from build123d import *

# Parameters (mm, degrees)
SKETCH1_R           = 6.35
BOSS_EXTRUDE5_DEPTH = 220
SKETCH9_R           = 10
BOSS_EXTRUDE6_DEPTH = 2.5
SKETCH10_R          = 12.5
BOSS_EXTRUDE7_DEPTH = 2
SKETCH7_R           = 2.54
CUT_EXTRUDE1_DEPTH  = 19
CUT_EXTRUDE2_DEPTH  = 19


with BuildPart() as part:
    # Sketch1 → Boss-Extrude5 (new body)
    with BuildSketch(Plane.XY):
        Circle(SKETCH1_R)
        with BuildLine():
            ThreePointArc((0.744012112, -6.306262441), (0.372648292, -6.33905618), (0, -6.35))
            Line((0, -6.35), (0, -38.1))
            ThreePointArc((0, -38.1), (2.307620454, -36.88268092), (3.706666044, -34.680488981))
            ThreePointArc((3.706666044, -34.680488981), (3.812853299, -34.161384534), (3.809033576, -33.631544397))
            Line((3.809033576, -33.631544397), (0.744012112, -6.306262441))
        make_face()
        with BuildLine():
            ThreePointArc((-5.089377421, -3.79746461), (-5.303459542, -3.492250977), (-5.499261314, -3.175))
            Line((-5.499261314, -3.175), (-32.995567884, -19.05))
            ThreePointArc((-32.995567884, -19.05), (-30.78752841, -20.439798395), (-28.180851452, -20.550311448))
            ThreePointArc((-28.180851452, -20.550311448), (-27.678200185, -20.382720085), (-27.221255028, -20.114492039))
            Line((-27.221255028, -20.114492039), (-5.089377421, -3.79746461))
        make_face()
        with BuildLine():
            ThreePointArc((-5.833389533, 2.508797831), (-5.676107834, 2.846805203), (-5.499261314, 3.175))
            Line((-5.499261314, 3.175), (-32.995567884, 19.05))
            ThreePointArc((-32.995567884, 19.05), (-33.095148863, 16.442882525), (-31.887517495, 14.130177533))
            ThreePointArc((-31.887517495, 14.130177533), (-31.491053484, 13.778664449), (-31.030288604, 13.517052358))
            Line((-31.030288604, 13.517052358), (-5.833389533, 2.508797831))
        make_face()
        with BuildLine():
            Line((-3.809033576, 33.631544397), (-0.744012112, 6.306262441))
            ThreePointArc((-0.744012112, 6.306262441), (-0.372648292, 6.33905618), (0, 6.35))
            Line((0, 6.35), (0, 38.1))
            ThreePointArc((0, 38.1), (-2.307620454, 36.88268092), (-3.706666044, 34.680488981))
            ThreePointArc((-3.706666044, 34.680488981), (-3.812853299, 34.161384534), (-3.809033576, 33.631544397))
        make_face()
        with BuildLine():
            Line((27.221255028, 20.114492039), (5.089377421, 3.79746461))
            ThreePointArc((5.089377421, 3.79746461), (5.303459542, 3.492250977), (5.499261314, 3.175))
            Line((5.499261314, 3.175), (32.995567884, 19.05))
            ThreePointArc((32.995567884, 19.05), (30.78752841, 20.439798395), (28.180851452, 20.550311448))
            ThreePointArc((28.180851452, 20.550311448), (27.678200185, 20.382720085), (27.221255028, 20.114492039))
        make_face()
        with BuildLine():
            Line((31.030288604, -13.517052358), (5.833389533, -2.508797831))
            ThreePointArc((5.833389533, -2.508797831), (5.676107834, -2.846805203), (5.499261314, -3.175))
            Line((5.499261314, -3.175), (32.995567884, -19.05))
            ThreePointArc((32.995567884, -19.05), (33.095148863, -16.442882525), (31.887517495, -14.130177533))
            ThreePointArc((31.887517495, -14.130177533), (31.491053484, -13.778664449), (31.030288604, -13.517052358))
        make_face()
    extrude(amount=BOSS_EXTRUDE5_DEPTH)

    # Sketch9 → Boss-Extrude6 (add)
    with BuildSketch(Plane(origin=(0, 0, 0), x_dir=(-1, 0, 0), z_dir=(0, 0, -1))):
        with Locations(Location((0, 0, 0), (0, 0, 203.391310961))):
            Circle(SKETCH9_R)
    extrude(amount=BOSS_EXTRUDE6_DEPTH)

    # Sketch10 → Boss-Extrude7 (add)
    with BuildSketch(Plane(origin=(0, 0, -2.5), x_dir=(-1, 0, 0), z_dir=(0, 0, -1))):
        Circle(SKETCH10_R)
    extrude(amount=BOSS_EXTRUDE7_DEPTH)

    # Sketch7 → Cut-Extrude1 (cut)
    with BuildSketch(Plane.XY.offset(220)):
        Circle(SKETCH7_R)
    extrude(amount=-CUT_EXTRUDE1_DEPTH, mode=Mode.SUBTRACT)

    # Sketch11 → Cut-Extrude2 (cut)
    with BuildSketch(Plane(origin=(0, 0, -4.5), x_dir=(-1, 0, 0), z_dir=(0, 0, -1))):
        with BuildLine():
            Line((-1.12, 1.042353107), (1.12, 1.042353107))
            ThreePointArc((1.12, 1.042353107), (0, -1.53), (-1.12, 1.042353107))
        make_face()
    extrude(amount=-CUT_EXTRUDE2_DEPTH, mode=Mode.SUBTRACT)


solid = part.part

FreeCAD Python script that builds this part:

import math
import FreeCAD as App
import Part
import Sketcher
Q = App.Units.Quantity

doc = App.newDocument("Part")
body = doc.addObject("PartDesign::Body", "Body")

# Sketch on XY plane
sketch1 = body.newObject("Sketcher::SketchObject", "Sketch")
sketch1.AttachmentSupport = (doc.getObject("XY_Plane"), [""])
sketch1.MapMode = "FlatFace"
sketch1.addGeometry([
    Part.LineSegment(App.Vector(0, -6.35, 0), App.Vector(0, -38.1, 0)),  # 0
    Part.ArcOfCircle(Part.Circle(App.Vector(-1.13694, -33.148862, 0), App.Vector(0, 0, 1), 5.08), math.radians(-77.06726), math.radians(-17.547802)),  # 1
    Part.ArcOfCircle(Part.Circle(App.Vector(1.284863, -33.914675, 0), App.Vector(0, 0, 1), 2.54), math.radians(-17.547802), math.radians(6.4)),  # 2
    Part.LineSegment(App.Vector(3.809034, -33.631544, 0), App.Vector(0.744012, -6.306262, 0)),  # 3
    Part.ArcOfCircle(Part.Circle(App.Vector(0, 0, 0), App.Vector(0, 0, 1), 6.35), math.radians(-83.271355), math.radians(-30)),  # 4
    Part.LineSegment(App.Vector(5.499261, -3.175, 0), App.Vector(32.995568, -19.05, 0)),  # 5
    Part.ArcOfCircle(Part.Circle(App.Vector(28.139287, -17.55905, 0), App.Vector(0, 0, 1), 5.08), math.radians(-17.06726), math.radians(42.452198)),  # 6
    Part.ArcOfCircle(Part.Circle(App.Vector(30.013402, -15.844614, 0), App.Vector(0, 0, 1), 2.54), math.radians(42.452198), math.radians(66.4)),  # 7
    Part.LineSegment(App.Vector(31.030289, -13.517052, 0), App.Vector(5.83339, -2.508798, 0)),  # 8
    Part.ArcOfCircle(Part.Circle(App.Vector(0, 0, 0), App.Vector(0, 0, 1), 6.35), math.radians(-23.271355), math.radians(30)),  # 9
    Part.LineSegment(App.Vector(5.499261, 3.175, 0), App.Vector(32.995568, 19.05, 0)),  # 10
    Part.ArcOfCircle(Part.Circle(App.Vector(29.276227, 15.589812, 0), App.Vector(0, 0, 1), 5.08), math.radians(42.93274), math.radians(102.452198)),  # 11
    Part.ArcOfCircle(Part.Circle(App.Vector(28.728539, 18.070062, 0), App.Vector(0, 0, 1), 2.54), math.radians(102.452198), math.radians(126.4)),  # 12
    Part.LineSegment(App.Vector(27.221255, 20.114492, 0), App.Vector(5.089377, 3.797465, 0)),  # 13
    Part.ArcOfCircle(Part.Circle(App.Vector(0, 0, 0), App.Vector(0, 0, 1), 6.35), math.radians(36.728645), math.radians(90)),  # 14
    Part.LineSegment(App.Vector(0, 6.35, 0), App.Vector(0, 38.1, 0)),  # 15
    Part.ArcOfCircle(Part.Circle(App.Vector(1.13694, 33.148862, 0), App.Vector(0, 0, 1), 5.08), math.radians(102.93274), math.radians(162.452198)),  # 16
    Part.ArcOfCircle(Part.Circle(App.Vector(-1.284863, 33.914675, 0), App.Vector(0, 0, 1), 2.54), math.radians(162.452198), math.radians(186.4)),  # 17
    Part.LineSegment(App.Vector(-3.809034, 33.631544, 0), App.Vector(-0.744012, 6.306262, 0)),  # 18
    Part.ArcOfCircle(Part.Circle(App.Vector(0, 0, 0), App.Vector(0, 0, 1), 6.35), math.radians(96.728645), math.radians(150)),  # 19
    Part.LineSegment(App.Vector(-5.499261, 3.175, 0), App.Vector(-32.995568, 19.05, 0)),  # 20
    Part.ArcOfCircle(Part.Circle(App.Vector(-28.139287, 17.55905, 0), App.Vector(0, 0, 1), 5.08), math.radians(162.93274), math.radians(222.452198)),  # 21
    Part.ArcOfCircle(Part.Circle(App.Vector(-30.013402, 15.844614, 0), App.Vector(0, 0, 1), 2.54), math.radians(-137.547802), math.radians(-113.6)),  # 22
    Part.LineSegment(App.Vector(-31.030289, 13.517052, 0), App.Vector(-5.83339, 2.508798, 0)),  # 23
    Part.ArcOfCircle(Part.Circle(App.Vector(0, 0, 0), App.Vector(0, 0, 1), 6.35), math.radians(156.728645), math.radians(210)),  # 24
    Part.LineSegment(App.Vector(-5.499261, -3.175, 0), App.Vector(-32.995568, -19.05, 0)),  # 25
    Part.ArcOfCircle(Part.Circle(App.Vector(-29.276227, -15.589812, 0), App.Vector(0, 0, 1), 5.08), math.radians(-137.06726), math.radians(-77.547802)),  # 26
    Part.ArcOfCircle(Part.Circle(App.Vector(-28.728539, -18.070062, 0), App.Vector(0, 0, 1), 2.54), math.radians(-77.547802), math.radians(-53.6)),  # 27
    Part.LineSegment(App.Vector(-27.221255, -20.114492, 0), App.Vector(-5.089377, -3.797465, 0)),  # 28
    Part.ArcOfCircle(Part.Circle(App.Vector(0, 0, 0), App.Vector(0, 0, 1), 6.35), math.radians(-143.271355), math.radians(-90)),  # 29
], False)
sketch1.addConstraint([
    Sketcher.Constraint("Coincident", 0, 2, 1, 1),
    Sketcher.Constraint("Tangent", 1, 2, 2, 1),
    Sketcher.Constraint("Tangent", 2, 2, 3, 1),
    Sketcher.Constraint("Coincident", 3, 2, 4, 1),
    Sketcher.Constraint("Coincident", 4, 2, 5, 1),
    Sketcher.Constraint("Coincident", 5, 2, 6, 1),
    Sketcher.Constraint("Tangent", 6, 2, 7, 1),
    Sketcher.Constraint("Tangent", 7, 2, 8, 1),
    Sketcher.Constraint("Coincident", 8, 2, 9, 1),
    Sketcher.Constraint("Coincident", 9, 2, 10, 1),
    Sketcher.Constraint("Coincident", 10, 2, 11, 1),
    Sketcher.Constraint("Tangent", 11, 2, 12, 1),
    Sketcher.Constraint("Tangent", 12, 2, 13, 1),
    Sketcher.Constraint("Coincident", 13, 2, 14, 1),
    Sketcher.Constraint("Coincident", 14, 2, 15, 1),
    Sketcher.Constraint("Coincident", 15, 2, 16, 1),
    Sketcher.Constraint("Tangent", 16, 2, 17, 1),
    Sketcher.Constraint("Tangent", 17, 2, 18, 1),
    Sketcher.Constraint("Coincident", 18, 2, 19, 1),
    Sketcher.Constraint("Coincident", 19, 2, 20, 1),
    Sketcher.Constraint("Coincident", 20, 2, 21, 1),
    Sketcher.Constraint("Tangent", 21, 2, 22, 1),
    Sketcher.Constraint("Tangent", 22, 2, 23, 1),
    Sketcher.Constraint("Coincident", 23, 2, 24, 1),
    Sketcher.Constraint("Coincident", 24, 2, 25, 1),
    Sketcher.Constraint("Coincident", 25, 2, 26, 1),
    Sketcher.Constraint("Tangent", 26, 2, 27, 1),
    Sketcher.Constraint("Tangent", 27, 2, 28, 1),
    Sketcher.Constraint("Coincident", 28, 2, 29, 1),
    Sketcher.Constraint("Coincident", 29, 2, 0, 1),
    Sketcher.Constraint("Vertical", 0),
    Sketcher.Constraint("Vertical", 15),
    Sketcher.Constraint("Coincident", 4, 3, -1, 1),
    Sketcher.Constraint("Coincident", 9, 3, -1, 1),
    Sketcher.Constraint("Coincident", 14, 3, -1, 1),
    Sketcher.Constraint("Coincident", 19, 3, -1, 1),
    Sketcher.Constraint("Coincident", 24, 3, -1, 1),
    Sketcher.Constraint("Coincident", 29, 3, -1, 1),
    Sketcher.Constraint("Equal", 1, 6),
    Sketcher.Constraint("Equal", 2, 7),
    Sketcher.Constraint("Equal", 4, 9),
    Sketcher.Constraint("Equal", 6, 11),
    Sketcher.Constraint("Equal", 7, 12),
    Sketcher.Constraint("Equal", 9, 14),
    Sketcher.Constraint("Equal", 11, 16),
    Sketcher.Constraint("Equal", 12, 17),
    Sketcher.Constraint("Equal", 14, 19),
    Sketcher.Constraint("Equal", 16, 21),
    Sketcher.Constraint("Equal", 17, 22),
    Sketcher.Constraint("Equal", 19, 24),
    Sketcher.Constraint("Equal", 21, 26),
    Sketcher.Constraint("Equal", 22, 27),
    Sketcher.Constraint("Equal", 24, 29),
    Sketcher.Constraint("Symmetric", 1, 3, 16, 3, -1, 1),
    Sketcher.Constraint("Symmetric", 6, 3, 21, 3, -1, 1),
    Sketcher.Constraint("Symmetric", 11, 3, 26, 3, -1, 1),
    Sketcher.Constraint("Symmetric", 2, 2, 17, 2, -1, 1),
    Sketcher.Constraint("Symmetric", 7, 2, 22, 2, -1, 1),
    Sketcher.Constraint("Symmetric", 12, 2, 27, 2, -1, 1),
    Sketcher.Constraint("Symmetric", 10, 2, 20, 2, -2),
    Sketcher.Constraint("Symmetric", 5, 2, 25, 2, -2),
    Sketcher.Constraint("Symmetric", 0, 2, 15, 2, -1),
    Sketcher.Constraint("Parallel", 5, 20),
    Sketcher.Constraint("Parallel", 10, 25),
    Sketcher.Constraint("Horizontal", 9, 2, 19, 2),
    Sketcher.Constraint("Equal", 3, 8),
    Sketcher.Constraint("Equal", 8, 13),
    Sketcher.Constraint("Angle", 5, Q("-30 deg")),
    Sketcher.Constraint("Radius", 1, 5.08),
    Sketcher.Constraint("Radius", 2, 2.54),
    Sketcher.Constraint("Radius", 4, 6.35),
    Sketcher.Constraint("Angle", 3, Q("96.4 deg")),
    Sketcher.Constraint("Angle", 8, Q("156.4 deg")),
    Sketcher.Constraint("Angle", 13, Q("-143.6 deg")),
    Sketcher.Constraint("DistanceY", 0, 2, 0, 1, 31.75),
    Sketcher.Constraint("Distance", 5, 31.75),
    Sketcher.Constraint("DistanceY", 5, 2, -1, 1, 19.05),
    Sketcher.Constraint("DistanceX", 6, 3, 7, 2, 2.891002),
    Sketcher.Constraint("DistanceX", 16, 3, 12, 3, 27.591599),
    Sketcher.Constraint("DistanceY", 12, 3, 16, 3, 15.0788),
    Sketcher.Constraint("DistanceX", 1, 2, 5, 2, 29.288902),
])
pad1 = body.newObject("PartDesign::Pad", "Pad")
pad1.Profile = sketch1
pad1.Length = 220

# Sketch on XY plane
sketch2 = body.newObject("Sketcher::SketchObject", "Sketch001")
sketch2.AttachmentSupport = (doc.getObject("XY_Plane"), [""])
sketch2.MapMode = "FlatFace"
sketch2.addGeometry(Part.Circle(App.Vector(0, 0, 0), App.Vector(0, 0, 1), 10), False)
sketch2.addConstraint([
    Sketcher.Constraint("Coincident", 0, 3, -1, 1),
    Sketcher.Constraint("Diameter", 0, 20.0),
])
pad2 = body.newObject("PartDesign::Pad", "Pad001")
pad2.Profile = sketch2
pad2.Length = 2.5
pad2.Reversed = True

# Sketch on XY plane
sketch3 = body.newObject("Sketcher::SketchObject", "Sketch002")
sketch3.AttachmentSupport = (doc.getObject("XY_Plane"), [""])
sketch3.MapMode = "FlatFace"
sketch3.AttachmentOffset = App.Placement(App.Vector(0, 0, -2.5), App.Rotation())
sketch3.addGeometry(Part.Circle(App.Vector(0, 0, 0), App.Vector(0, 0, 1), 12.5), False)
sketch3.addConstraint([
    Sketcher.Constraint("Coincident", 0, 3, -1, 1),
    Sketcher.Constraint("Diameter", 0, 25.0),
])
pad3 = body.newObject("PartDesign::Pad", "Pad002")
pad3.Profile = sketch3
pad3.Length = 2
pad3.Reversed = True

# Sketch on XY plane
sketch4 = body.newObject("Sketcher::SketchObject", "Sketch003")
sketch4.AttachmentSupport = (doc.getObject("XY_Plane"), [""])
sketch4.MapMode = "FlatFace"
sketch4.AttachmentOffset = App.Placement(App.Vector(0, 0, 220), App.Rotation())
sketch4.addGeometry(Part.Circle(App.Vector(0, 0, 0), App.Vector(0, 0, 1), 2.54), False)
sketch4.addConstraint([
    Sketcher.Constraint("Coincident", 0, 3, -1, 1),
    Sketcher.Constraint("Diameter", 0, 5.08),
])
pocket1 = body.newObject("PartDesign::Pocket", "Pocket")
pocket1.Profile = sketch4
pocket1.Length = 19

# Sketch on XY plane
sketch5 = body.newObject("Sketcher::SketchObject", "Sketch004")
sketch5.AttachmentSupport = (doc.getObject("XY_Plane"), [""])
sketch5.MapMode = "FlatFace"
sketch5.AttachmentOffset = App.Placement(App.Vector(0, 0, -4.5), App.Rotation())
sketch5.addGeometry([
    Part.LineSegment(App.Vector(-1.12, 1.042353, 0), App.Vector(1.12, 1.042353, 0)),
    Part.ArcOfCircle(Part.Circle(App.Vector(0, 0, 0), App.Vector(0, 0, 1), 1.53), math.radians(137.056523), math.radians(402.943477)),
], False)
sketch5.addConstraint([
    Sketcher.Constraint("Coincident", 0, 1, 1, 1),
    Sketcher.Constraint("Coincident", 1, 2, 0, 2),
    Sketcher.Constraint("Horizontal", 0),
    Sketcher.Constraint("Coincident", 1, 3, -1, 1),
    Sketcher.Constraint("Radius", 1, 1.53),
    Sketcher.Constraint("DistanceX", 0, 1, 0, 2, 2.24),
])
pocket2 = body.newObject("PartDesign::Pocket", "Pocket001")
pocket2.Profile = sketch5
pocket2.Length = 19
pocket2.Reversed = True

doc.recompute()
